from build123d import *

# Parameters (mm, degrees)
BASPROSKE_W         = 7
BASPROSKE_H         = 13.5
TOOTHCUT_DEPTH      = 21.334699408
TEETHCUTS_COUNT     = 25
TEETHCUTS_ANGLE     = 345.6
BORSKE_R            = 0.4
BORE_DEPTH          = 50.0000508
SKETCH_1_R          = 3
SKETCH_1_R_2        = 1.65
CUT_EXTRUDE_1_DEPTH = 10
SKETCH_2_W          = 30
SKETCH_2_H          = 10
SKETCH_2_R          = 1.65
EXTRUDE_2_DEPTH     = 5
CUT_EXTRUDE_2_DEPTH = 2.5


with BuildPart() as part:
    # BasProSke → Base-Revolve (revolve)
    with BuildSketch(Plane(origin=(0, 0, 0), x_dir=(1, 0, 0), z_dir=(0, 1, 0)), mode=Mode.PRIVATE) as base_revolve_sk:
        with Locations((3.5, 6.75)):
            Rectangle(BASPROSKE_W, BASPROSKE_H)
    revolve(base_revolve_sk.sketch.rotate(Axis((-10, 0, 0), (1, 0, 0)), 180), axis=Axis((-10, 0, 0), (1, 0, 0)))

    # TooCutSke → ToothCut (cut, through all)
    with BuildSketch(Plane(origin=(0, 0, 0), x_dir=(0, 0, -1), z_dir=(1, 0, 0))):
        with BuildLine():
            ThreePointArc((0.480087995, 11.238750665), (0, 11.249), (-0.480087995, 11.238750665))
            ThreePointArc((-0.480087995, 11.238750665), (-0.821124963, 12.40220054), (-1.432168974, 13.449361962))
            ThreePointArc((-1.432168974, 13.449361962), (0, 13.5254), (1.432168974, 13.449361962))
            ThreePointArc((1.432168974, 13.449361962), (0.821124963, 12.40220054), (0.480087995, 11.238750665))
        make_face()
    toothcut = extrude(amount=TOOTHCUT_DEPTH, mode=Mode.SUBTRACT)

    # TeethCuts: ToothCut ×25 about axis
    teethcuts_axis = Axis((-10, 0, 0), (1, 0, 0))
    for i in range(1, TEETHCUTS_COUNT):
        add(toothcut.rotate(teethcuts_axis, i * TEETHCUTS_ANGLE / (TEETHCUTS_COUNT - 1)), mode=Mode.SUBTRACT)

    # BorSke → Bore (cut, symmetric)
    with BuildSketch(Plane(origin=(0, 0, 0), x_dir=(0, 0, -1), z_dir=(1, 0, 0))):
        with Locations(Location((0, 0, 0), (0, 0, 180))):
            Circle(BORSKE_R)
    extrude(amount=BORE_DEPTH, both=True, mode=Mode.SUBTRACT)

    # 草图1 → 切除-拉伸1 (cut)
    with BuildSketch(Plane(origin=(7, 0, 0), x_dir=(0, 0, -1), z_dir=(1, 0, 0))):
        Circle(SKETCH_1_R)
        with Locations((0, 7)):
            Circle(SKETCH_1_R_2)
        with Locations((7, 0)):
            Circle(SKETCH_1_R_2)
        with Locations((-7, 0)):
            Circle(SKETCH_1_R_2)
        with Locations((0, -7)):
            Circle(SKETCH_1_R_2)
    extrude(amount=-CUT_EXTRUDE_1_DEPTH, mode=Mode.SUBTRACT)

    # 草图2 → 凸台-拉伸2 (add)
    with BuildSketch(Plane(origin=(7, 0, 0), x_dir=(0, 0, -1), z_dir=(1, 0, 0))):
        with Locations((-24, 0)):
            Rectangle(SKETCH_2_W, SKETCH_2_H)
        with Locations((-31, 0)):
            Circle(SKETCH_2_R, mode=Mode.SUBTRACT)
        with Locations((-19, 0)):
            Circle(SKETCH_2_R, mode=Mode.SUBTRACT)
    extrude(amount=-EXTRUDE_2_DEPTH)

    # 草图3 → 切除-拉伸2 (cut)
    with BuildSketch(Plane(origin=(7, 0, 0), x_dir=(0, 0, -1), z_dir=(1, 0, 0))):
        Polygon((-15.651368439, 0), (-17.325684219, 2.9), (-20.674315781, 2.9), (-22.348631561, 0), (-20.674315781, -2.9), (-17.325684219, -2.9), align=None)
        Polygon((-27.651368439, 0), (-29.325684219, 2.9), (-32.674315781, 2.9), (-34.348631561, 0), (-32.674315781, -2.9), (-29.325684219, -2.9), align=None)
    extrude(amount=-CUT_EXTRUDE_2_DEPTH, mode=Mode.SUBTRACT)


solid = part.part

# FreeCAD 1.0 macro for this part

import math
import FreeCAD as App
import Part
import Sketcher
from FreeCAD import Vector
Q = App.Units.Quantity

doc = App.newDocument("Part")
body = doc.addObject("PartDesign::Body", "Body")

# Sketch on XZ plane
sketch1 = body.newObject("Sketcher::SketchObject", "Sketch")
sketch1.AttachmentSupport = (doc.getObject("XZ_Plane"), [""])
sketch1.MapMode = "FlatFace"
sketch1.addGeometry(Part.LineSegment(Vector(0, -14, 0), Vector(0, 0, 0)), False)
sketch1.addGeometry(Part.LineSegment(Vector(0, 0, 0), Vector(7, 0, 0)), False)
sketch1.addGeometry(Part.LineSegment(Vector(7, 0, 0), Vector(7, -14, 0)), False)
sketch1.addGeometry(Part.LineSegment(Vector(7, -14, 0), Vector(0, -14, 0)), False)
sketch1.addConstraint(Sketcher.Constraint("Coincident", 0, 2, 1, 1))
sketch1.addConstraint(Sketcher.Constraint("Coincident", 1, 2, 2, 1))
sketch1.addConstraint(Sketcher.Constraint("Coincident", 2, 2, 3, 1))
sketch1.addConstraint(Sketcher.Constraint("Coincident", 3, 2, 0, 1))
sketch1.addConstraint(Sketcher.Constraint("Vertical", 0))
sketch1.addConstraint(Sketcher.Constraint("Horizontal", 1))
sketch1.addConstraint(Sketcher.Constraint("Vertical", 2))
sketch1.addConstraint(Sketcher.Constraint("Horizontal", 3))
sketch1.addConstraint(Sketcher.Constraint("Coincident", 0, 2, -1, 1))
sketch1.addConstraint(Sketcher.Constraint("DistanceX", 1, 1, 1, 2, 7.0))
sketch1.addConstraint(Sketcher.Constraint("DistanceY", 0, 1, 0, 2, 13.5))
revolution = body.newObject("PartDesign::Revolution", "Revolution")
revolution.Profile = sketch1
revolution.ReferenceAxis = (sketch1, ["H_Axis"])
revolution.Angle = 360

# Sketch on YZ plane
sketch2 = body.newObject("Sketcher::SketchObject", "Sketch001")
sketch2.AttachmentSupport = (doc.getObject("YZ_Plane"), [""])
sketch2.MapMode = "FlatFace"
sketch2.addGeometry(Part.ArcOfCircle(Part.Circle(Vector(0, 0, 0), Vector(0, 0, 1), 11.2), math.radians(-2.45), math.radians(2.45)), False)
sketch2.addGeometry(Part.ArcOfCircle(Part.Circle(Vector(10.4, -5.4, 0), Vector(0, 0, 1), 5), math.radians(53), math.radians(81)), False)
sketch2.addGeometry(Part.ArcOfCircle(Part.Circle(Vector(0, 0, 0), Vector(0, 0, 1), 13.5), math.radians(-6.08), math.radians(6.08)), False)
sketch2.addGeometry(Part.ArcOfCircle(Part.Circle(Vector(10.4, 5.4, 0), Vector(0, 0, 1), 5), math.radians(-81), math.radians(-53)), False)
sketch2.addConstraint(Sketcher.Constraint("Coincident", 0, 1, 1, 2))
sketch2.addConstraint(Sketcher.Constraint("Coincident", 1, 1, 2, 1))
sketch2.addConstraint(Sketcher.Constraint("Coincident", 2, 2, 3, 2))
sketch2.addConstraint(Sketcher.Constraint("Coincident", 3, 1, 0, 2))
sketch2.addConstraint(Sketcher.Constraint("Coincident", 0, 3, -1, 1))
sketch2.addConstraint(Sketcher.Constraint("Coincident", 2, 3, -1, 1))
sketch2.addConstraint(Sketcher.Constraint("Equal", 1, 3))
sketch2.addConstraint(Sketcher.Constraint("Symmetric", 1, 3, 3, 3, -1))
sketch2.addConstraint(Sketcher.Constraint("Radius", 1, 5.0))
sketch2.addConstraint(Sketcher.Constraint("Radius", 0, 11.249))
sketch2.addConstraint(Sketcher.Constraint("Radius", 2, 13.5254))
sketch2.addConstraint(Sketcher.Constraint("DistanceX", -1, 1, 1, 3, 10.424401))
sketch2.addConstraint(Sketcher.Constraint("DistanceX", -1, 1, 0, 1, 11.238751))
pocket1 = body.newObject("PartDesign::Pocket", "Pocket")
pocket1.Profile = sketch2
pocket1.Type = "ThroughAll"
pocket1.Reversed = True
doc.recompute()

polarpattern = body.newObject("PartDesign::PolarPattern", "PolarPattern")
polarpattern.Originals = [pocket1]
polarpattern.Axis = (doc.getObject("X_Axis"), [""])
polarpattern.Angle = 360
polarpattern.Occurrences = 25
body.Tip = polarpattern

# Sketch on YZ plane
sketch3 = body.newObject("Sketcher::SketchObject", "Sketch002")
sketch3.AttachmentSupport = (doc.getObject("YZ_Plane"), [""])
sketch3.MapMode = "FlatFace"
sketch3.addGeometry(Part.Circle(Vector(0, 0, 0), Vector(0, 0, 1), 0.4), False)
sketch3.addConstraint(Sketcher.Constraint("Coincident", 0, 3, -1, 1))
sketch3.addConstraint(Sketcher.Constraint("Diameter", 0, 0.8))
pocket2 = body.newObject("PartDesign::Pocket", "Pocket001")
pocket2.Profile = sketch3
pocket2.Length = 100.000102
pocket2.Midplane = True

# Sketch on YZ plane
sketch4 = body.newObject("Sketcher::SketchObject", "Sketch003")
sketch4.AttachmentSupport = (doc.getObject("YZ_Plane"), [""])
sketch4.MapMode = "FlatFace"
sketch4.AttachmentOffset = App.Placement(Vector(0, 0, 7), App.Rotation())
sketch4.addGeometry(Part.Circle(Vector(0, 0, 0), Vector(0, 0, 1), 3), False)
sketch4.addGeometry(Part.Circle(Vector(7, 0, 0), Vector(0, 0, 1), 1.6), False)
sketch4.addGeometry(Part.Circle(Vector(0, -7, 0), Vector(0, 0, 1), 1.6), False)
sketch4.addGeometry(Part.Circle(Vector(0, 7, 0), Vector(0, 0, 1), 1.6), False)
sketch4.addGeometry(Part.Circle(Vector(-7, 0, 0), Vector(0, 0, 1), 1.6), False)
sketch4.addConstraint(Sketcher.Constraint("Coincident", 0, 3, -1, 1))
sketch4.addConstraint(Sketcher.Constraint("Equal", 1, 2))
sketch4.addConstraint(Sketcher.Constraint("Equal", 2, 3))
sketch4.addConstraint(Sketcher.Constraint("Equal", 3, 4))
sketch4.addConstraint(Sketcher.Constraint("Symmetric", 2, 3, 3, 3, -1, 1))
sketch4.addConstraint(Sketcher.Constraint("Symmetric", 1, 3, 4, 3, -1, 1))
sketch4.addConstraint(Sketcher.Constraint("PointOnObject", 1, 3, -1))
sketch4.addConstraint(Sketcher.Constraint("PointOnObject", 2, 3, -2))
sketch4.addConstraint(Sketcher.Constraint("Diameter", 0, 6.0))
sketch4.addConstraint(Sketcher.Constraint("Diameter", 1, 3.3))
sketch4.addConstraint(Sketcher.Constraint("DistanceX", -1, 1, 1, 3, 7.0))
sketch4.addConstraint(Sketcher.Constraint("DistanceY", 2, 3, -1, 1, 7.0))
pocket3 = body.newObject("PartDesign::Pocket", "Pocket002")
pocket3.Profile = sketch4
pocket3.Length = 10

# Sketch on YZ plane
sketch5 = body.newObject("Sketcher::SketchObject", "Sketch004")
sketch5.AttachmentSupport = (doc.getObject("YZ_Plane"), [""])
sketch5.MapMode = "FlatFace"
sketch5.AttachmentOffset = App.Placement(Vector(0, 0, 7), App.Rotation())
sketch5.addGeometry(Part.LineSegment(Vector(5, 39, 0), Vector(-5, 39, 0)), False)
sketch5.addGeometry(Part.LineSegment(Vector(-5, 39, 0), Vector(-5, 9, 0)), False)
sketch5.addGeometry(Part.LineSegment(Vector(-5, 9, 0), Vector(5, 9, 0)), False)
sketch5.addGeometry(Part.LineSegment(Vector(5, 9, 0), Vector(5, 39, 0)), False)
sketch5.addGeometry(Part.Circle(Vector(0, 31, 0), Vector(0, 0, 1), 1.6), False)
sketch5.addGeometry(Part.Circle(Vector(0, 19, 0), Vector(0, 0, 1), 1.6), False)
sketch5.addConstraint(Sketcher.Constraint("Coincident", 0, 2, 1, 1))
sketch5.addConstraint(Sketcher.Constraint("Coincident", 1, 2, 2, 1))
sketch5.addConstraint(Sketcher.Constraint("Coincident", 2, 2, 3, 1))
sketch5.addConstraint(Sketcher.Constraint("Coincident", 3, 2, 0, 1))
sketch5.addConstraint(Sketcher.Constraint("Horizontal", 0))
sketch5.addConstraint(Sketcher.Constraint("Vertical", 1))
sketch5.addConstraint(Sketcher.Constraint("Horizontal", 2))
sketch5.addConstraint(Sketcher.Constraint("Vertical", 3))
sketch5.addConstraint(Sketcher.Constraint("Equal", 4, 5))
sketch5.addConstraint(Sketcher.Constraint("PointOnObject", 4, 3, -2))
sketch5.addConstraint(Sketcher.Constraint("PointOnObject", 5, 3, -2))
sketch5.addConstraint(Sketcher.Constraint("Diameter", 4, 3.3))
sketch5.addConstraint(Sketcher.Constraint("DistanceX", 0, 2, 0, 1, 10.0))
sketch5.addConstraint(Sketcher.Constraint("DistanceY", 1, 2, 1, 1, 30.0))
sketch5.addConstraint(Sketcher.Constraint("DistanceY", -1, 1, 4, 3, 31.0))
sketch5.addConstraint(Sketcher.Constraint("DistanceY", -1, 1, 5, 3, 19.0))
sketch5.addConstraint(Sketcher.Constraint("DistanceX", 0, 2, -1, 1, 5.0))
sketch5.addConstraint(Sketcher.Constraint("DistanceY", -1, 1, 0, 2, 39.0))
pad1 = body.newObject("PartDesign::Pad", "Pad")
pad1.Profile = sketch5
pad1.Length = 5
pad1.Reversed = True

# Sketch on YZ plane
sketch6 = body.newObject("Sketcher::SketchObject", "Sketch005")
sketch6.AttachmentSupport = (doc.getObject("YZ_Plane"), [""])
sketch6.MapMode = "FlatFace"
sketch6.AttachmentOffset = App.Placement(Vector(0, 0, 7), App.Rotation())
sketch6.addGeometry(Part.LineSegment(Vector(0, 15.7, 0), Vector(2.9, 17.3, 0)), False)
sketch6.addGeometry(Part.LineSegment(Vector(2.9, 17.3, 0), Vector(2.9, 20.7, 0)), False)
sketch6.addGeometry(Part.LineSegment(Vector(2.9, 20.7, 0), Vector(0, 22.3, 0)), False)
sketch6.addGeometry(Part.LineSegment(Vector(0, 22.3, 0), Vector(-2.9, 20.7, 0)), False)
sketch6.addGeometry(Part.LineSegment(Vector(-2.9, 20.7, 0), Vector(-2.9, 17.3, 0)), False)
sketch6.addGeometry(Part.LineSegment(Vector(-2.9, 17.3, 0), Vector(0, 15.7, 0)), False)
sketch6.addGeometry(Part.LineSegment(Vector(0, 27.7, 0), Vector(2.9, 29.3, 0)), False)
sketch6.addGeometry(Part.LineSegment(Vector(2.9, 29.3, 0), Vector(2.9, 32.7, 0)), False)
sketch6.addGeometry(Part.LineSegment(Vector(2.9, 32.7, 0), Vector(0, 34.3, 0)), False)
sketch6.addGeometry(Part.LineSegment(Vector(0, 34.3, 0), Vector(-2.9, 32.7, 0)), False)
sketch6.addGeometry(Part.LineSegment(Vector(-2.9, 32.7, 0), Vector(-2.9, 29.3, 0)), False)
sketch6.addGeometry(Part.LineSegment(Vector(-2.9, 29.3, 0), Vector(0, 27.7, 0)), False)
sketch6.addConstraint(Sketcher.Constraint("Coincident", 0, 2, 1, 1))
sketch6.addConstraint(Sketcher.Constraint("Coincident", 1, 2, 2, 1))
sketch6.addConstraint(Sketcher.Constraint("Coincident", 2, 2, 3, 1))
sketch6.addConstraint(Sketcher.Constraint("Coincident", 3, 2, 4, 1))
sketch6.addConstraint(Sketcher.Constraint("Coincident", 4, 2, 5, 1))
sketch6.addConstraint(Sketcher.Constraint("Coincident", 5, 2, 0, 1))
sketch6.addConstraint(Sketcher.Constraint("Coincident", 6, 2, 7, 1))
sketch6.addConstraint(Sketcher.Constraint("Coincident", 7, 2, 8, 1))
sketch6.addConstraint(Sketcher.Constraint("Coincident", 8, 2, 9, 1))
sketch6.addConstraint(Sketcher.Constraint("Coincident", 9, 2, 10, 1))
sketch6.addConstraint(Sketcher.Constraint("Coincident", 10, 2, 11, 1))
sketch6.addConstraint(Sketcher.Constraint("Coincident", 11, 2, 6, 1))
sketch6.addConstraint(Sketcher.Constraint("Vertical", 1))
sketch6.addConstraint(Sketcher.Constraint("Vertical", 4))
sketch6.addConstraint(Sketcher.Constraint("Vertical", 7))
sketch6.addConstraint(Sketcher.Constraint("Vertical", 10))
sketch6.addConstraint(Sketcher.Constraint("Symmetric", 1, 2, 3, 2, -2))
sketch6.addConstraint(Sketcher.Constraint("Symmetric", 7, 2, 9, 2, -2))
sketch6.addConstraint(Sketcher.Constraint("PointOnObject", 2, 2, -2))
sketch6.addConstraint(Sketcher.Constraint("PointOnObject", 5, 2, -2))
sketch6.addConstraint(Sketcher.Constraint("PointOnObject", 8, 2, -2))
sketch6.addConstraint(Sketcher.Constraint("PointOnObject", 11, 2, -2))
sketch6.addConstraint(Sketcher.Constraint("Parallel", 0, 3))
sketch6.addConstraint(Sketcher.Constraint("Parallel", 2, 5))
sketch6.addConstraint(Sketcher.Constraint("Parallel", 3, 6))
sketch6.addConstraint(Sketcher.Constraint("Parallel", 5, 8))
sketch6.addConstraint(Sketcher.Constraint("Parallel", 8, 11))
sketch6.addConstraint(Sketcher.Constraint("Vertical", 1, 2, 6, 2))
sketch6.addConstraint(Sketcher.Constraint("Equal", 4, 7))
sketch6.addConstraint(Sketcher.Constraint("Angle", 0, Q("30 deg")))
sketch6.addConstraint(Sketcher.Constraint("DistanceY", 0, 2, 6, 2, 12.0))
sketch6.addConstraint(Sketcher.Constraint("DistanceX", -1, 1, 0, 2, 2.9))
sketch6.addConstraint(Sketcher.Constraint("DistanceY", 1, 1, 1, 2, 3.348632))
sketch6.addConstraint(Sketcher.Constraint("DistanceY", -1, 1, 2, 2, 22.348632))
pocket4 = body.newObject("PartDesign::Pocket", "Pocket003")
pocket4.Profile = sketch6
pocket4.Length = 2.5

doc.recompute()
